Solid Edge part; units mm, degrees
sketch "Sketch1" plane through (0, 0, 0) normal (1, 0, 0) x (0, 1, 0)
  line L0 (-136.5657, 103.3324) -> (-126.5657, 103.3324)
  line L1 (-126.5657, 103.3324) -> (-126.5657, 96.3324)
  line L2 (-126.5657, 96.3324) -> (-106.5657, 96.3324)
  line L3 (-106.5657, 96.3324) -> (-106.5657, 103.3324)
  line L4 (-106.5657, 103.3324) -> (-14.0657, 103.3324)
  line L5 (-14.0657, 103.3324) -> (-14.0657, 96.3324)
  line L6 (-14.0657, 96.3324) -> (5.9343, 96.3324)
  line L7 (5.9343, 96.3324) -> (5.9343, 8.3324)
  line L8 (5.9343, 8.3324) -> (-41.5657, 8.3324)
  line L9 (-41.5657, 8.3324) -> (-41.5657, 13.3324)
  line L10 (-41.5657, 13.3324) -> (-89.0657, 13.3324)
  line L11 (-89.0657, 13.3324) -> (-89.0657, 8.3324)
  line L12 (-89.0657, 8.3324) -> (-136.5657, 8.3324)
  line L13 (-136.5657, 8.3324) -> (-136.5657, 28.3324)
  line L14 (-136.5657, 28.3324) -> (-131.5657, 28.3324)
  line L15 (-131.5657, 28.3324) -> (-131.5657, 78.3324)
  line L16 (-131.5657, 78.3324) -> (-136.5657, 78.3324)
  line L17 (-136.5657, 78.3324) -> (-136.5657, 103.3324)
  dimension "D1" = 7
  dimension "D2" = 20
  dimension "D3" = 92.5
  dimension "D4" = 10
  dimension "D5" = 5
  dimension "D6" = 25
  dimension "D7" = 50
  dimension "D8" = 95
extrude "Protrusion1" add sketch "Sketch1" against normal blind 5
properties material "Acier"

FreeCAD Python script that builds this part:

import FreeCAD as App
import Part
import Sketcher

V = App.Vector
Q = App.Units.Quantity

doc = App.newDocument("Part")
body = doc.addObject("PartDesign::Body", "Body")

# Sketch on YZ plane
sketch1 = body.newObject("Sketcher::SketchObject", "Sketch")
sketch1.AttachmentSupport = (doc.getObject("YZ_Plane"), [""])
sketch1.MapMode = "FlatFace"
sketch1.addGeometry([
    Part.LineSegment(V(-127, 103, 0), V(-137, 103, 0)),  # 0
    Part.LineSegment(V(-137, 103, 0), V(-137, 78, 0)),  # 1
    Part.LineSegment(V(-137, 78, 0), V(-132, 78, 0)),  # 2
    Part.LineSegment(V(-132, 78, 0), V(-132, 28, 0)),  # 3
    Part.LineSegment(V(-132, 28, 0), V(-137, 28, 0)),  # 4
    Part.LineSegment(V(-137, 28, 0), V(-137, 8, 0)),  # 5
    Part.LineSegment(V(-137, 8, 0), V(-89, 8, 0)),  # 6
    Part.LineSegment(V(-89, 8, 0), V(-89, 13, 0)),  # 7
    Part.LineSegment(V(-89, 13, 0), V(-42, 13, 0)),  # 8
    Part.LineSegment(V(-42, 13, 0), V(-42, 8, 0)),  # 9
    Part.LineSegment(V(-42, 8, 0), V(6, 8, 0)),  # 10
    Part.LineSegment(V(6, 8, 0), V(6, 96, 0)),  # 11
    Part.LineSegment(V(6, 96, 0), V(-14, 96, 0)),  # 12
    Part.LineSegment(V(-14, 96, 0), V(-14, 103, 0)),  # 13
    Part.LineSegment(V(-14, 103, 0), V(-107, 103, 0)),  # 14
    Part.LineSegment(V(-107, 103, 0), V(-107, 96, 0)),  # 15
    Part.LineSegment(V(-107, 96, 0), V(-127, 96, 0)),  # 16
    Part.LineSegment(V(-127, 96, 0), V(-127, 103, 0)),  # 17
], False)
sketch1.addConstraint([
    Sketcher.Constraint("Coincident", 0, 2, 1, 1),
    Sketcher.Constraint("Coincident", 1, 2, 2, 1),
    Sketcher.Constraint("Coincident", 2, 2, 3, 1),
    Sketcher.Constraint("Coincident", 3, 2, 4, 1),
    Sketcher.Constraint("Coincident", 4, 2, 5, 1),
    Sketcher.Constraint("Coincident", 5, 2, 6, 1),
    Sketcher.Constraint("Coincident", 6, 2, 7, 1),
    Sketcher.Constraint("Coincident", 7, 2, 8, 1),
    Sketcher.Constraint("Coincident", 8, 2, 9, 1),
    Sketcher.Constraint("Coincident", 9, 2, 10, 1),
    Sketcher.Constraint("Coincident", 10, 2, 11, 1),
    Sketcher.Constraint("Coincident", 11, 2, 12, 1),
    Sketcher.Constraint("Coincident", 12, 2, 13, 1),
    Sketcher.Constraint("Coincident", 13, 2, 14, 1),
    Sketcher.Constraint("Coincident", 14, 2, 15, 1),
    Sketcher.Constraint("Coincident", 15, 2, 16, 1),
    Sketcher.Constraint("Coincident", 16, 2, 17, 1),
    Sketcher.Constraint("Coincident", 17, 2, 0, 1),
    Sketcher.Constraint("Horizontal", 0),
    Sketcher.Constraint("Vertical", 1),
    Sketcher.Constraint("Horizontal", 2),
    Sketcher.Constraint("Vertical", 3),
    Sketcher.Constraint("Horizontal", 4),
    Sketcher.Constraint("Vertical", 5),
    Sketcher.Constraint("Horizontal", 6),
    Sketcher.Constraint("Vertical", 7),
    Sketcher.Constraint("Horizontal", 8),
    Sketcher.Constraint("Vertical", 9),
    Sketcher.Constraint("Horizontal", 10),
    Sketcher.Constraint("Vertical", 11),
    Sketcher.Constraint("Horizontal", 12),
    Sketcher.Constraint("Vertical", 13),
    Sketcher.Constraint("Horizontal", 14),
    Sketcher.Constraint("Vertical", 15),
    Sketcher.Constraint("Horizontal", 16),
    Sketcher.Constraint("Vertical", 17),
    Sketcher.Constraint("Horizontal", 6, 2, 9, 2),
    Sketcher.Constraint("Horizontal", 0, 2, 13, 2),
    Sketcher.Constraint("Horizontal", 12, 2, 15, 2),
    Sketcher.Constraint("Vertical", 1, 2, 4, 2),
    Sketcher.Constraint("Equal", 6, 8),
    Sketcher.Constraint("Equal", 8, 10),
    Sketcher.Constraint("Equal", 12, 16),
    Sketcher.Constraint("Equal", 16, 5),
    Sketcher.Constraint("Equal", 4, 7),
    Sketcher.Constraint("DistanceX", 0, 2, 0, 1, Q("10 mm")),
    Sketcher.Constraint("DistanceX", 2, 1, 2, 2, Q("5 mm")),
    Sketcher.Constraint("DistanceX", 12, 2, 12, 1, Q("20 mm")),
    Sketcher.Constraint("DistanceY", 1, 2, 1, 1, Q("25 mm")),
    Sketcher.Constraint("DistanceY", 3, 2, 3, 1, Q("50 mm")),
    Sketcher.Constraint("DistanceY", 11, 1, 11, 2, Q("88 mm")),
    Sketcher.Constraint("DistanceX", 6, 1, 6, 2, Q("47.5 mm")),
    Sketcher.Constraint("DistanceX", 0, 2, -1, 1, Q("136.5657 mm")),
    Sketcher.Constraint("DistanceY", -1, 1, 0, 2, Q("103.3324 mm")),
])
pad1 = body.newObject("PartDesign::Pad", "Pad")
pad1.Profile = sketch1
pad1.Length = 5
pad1.Reversed = True

doc.recompute()
